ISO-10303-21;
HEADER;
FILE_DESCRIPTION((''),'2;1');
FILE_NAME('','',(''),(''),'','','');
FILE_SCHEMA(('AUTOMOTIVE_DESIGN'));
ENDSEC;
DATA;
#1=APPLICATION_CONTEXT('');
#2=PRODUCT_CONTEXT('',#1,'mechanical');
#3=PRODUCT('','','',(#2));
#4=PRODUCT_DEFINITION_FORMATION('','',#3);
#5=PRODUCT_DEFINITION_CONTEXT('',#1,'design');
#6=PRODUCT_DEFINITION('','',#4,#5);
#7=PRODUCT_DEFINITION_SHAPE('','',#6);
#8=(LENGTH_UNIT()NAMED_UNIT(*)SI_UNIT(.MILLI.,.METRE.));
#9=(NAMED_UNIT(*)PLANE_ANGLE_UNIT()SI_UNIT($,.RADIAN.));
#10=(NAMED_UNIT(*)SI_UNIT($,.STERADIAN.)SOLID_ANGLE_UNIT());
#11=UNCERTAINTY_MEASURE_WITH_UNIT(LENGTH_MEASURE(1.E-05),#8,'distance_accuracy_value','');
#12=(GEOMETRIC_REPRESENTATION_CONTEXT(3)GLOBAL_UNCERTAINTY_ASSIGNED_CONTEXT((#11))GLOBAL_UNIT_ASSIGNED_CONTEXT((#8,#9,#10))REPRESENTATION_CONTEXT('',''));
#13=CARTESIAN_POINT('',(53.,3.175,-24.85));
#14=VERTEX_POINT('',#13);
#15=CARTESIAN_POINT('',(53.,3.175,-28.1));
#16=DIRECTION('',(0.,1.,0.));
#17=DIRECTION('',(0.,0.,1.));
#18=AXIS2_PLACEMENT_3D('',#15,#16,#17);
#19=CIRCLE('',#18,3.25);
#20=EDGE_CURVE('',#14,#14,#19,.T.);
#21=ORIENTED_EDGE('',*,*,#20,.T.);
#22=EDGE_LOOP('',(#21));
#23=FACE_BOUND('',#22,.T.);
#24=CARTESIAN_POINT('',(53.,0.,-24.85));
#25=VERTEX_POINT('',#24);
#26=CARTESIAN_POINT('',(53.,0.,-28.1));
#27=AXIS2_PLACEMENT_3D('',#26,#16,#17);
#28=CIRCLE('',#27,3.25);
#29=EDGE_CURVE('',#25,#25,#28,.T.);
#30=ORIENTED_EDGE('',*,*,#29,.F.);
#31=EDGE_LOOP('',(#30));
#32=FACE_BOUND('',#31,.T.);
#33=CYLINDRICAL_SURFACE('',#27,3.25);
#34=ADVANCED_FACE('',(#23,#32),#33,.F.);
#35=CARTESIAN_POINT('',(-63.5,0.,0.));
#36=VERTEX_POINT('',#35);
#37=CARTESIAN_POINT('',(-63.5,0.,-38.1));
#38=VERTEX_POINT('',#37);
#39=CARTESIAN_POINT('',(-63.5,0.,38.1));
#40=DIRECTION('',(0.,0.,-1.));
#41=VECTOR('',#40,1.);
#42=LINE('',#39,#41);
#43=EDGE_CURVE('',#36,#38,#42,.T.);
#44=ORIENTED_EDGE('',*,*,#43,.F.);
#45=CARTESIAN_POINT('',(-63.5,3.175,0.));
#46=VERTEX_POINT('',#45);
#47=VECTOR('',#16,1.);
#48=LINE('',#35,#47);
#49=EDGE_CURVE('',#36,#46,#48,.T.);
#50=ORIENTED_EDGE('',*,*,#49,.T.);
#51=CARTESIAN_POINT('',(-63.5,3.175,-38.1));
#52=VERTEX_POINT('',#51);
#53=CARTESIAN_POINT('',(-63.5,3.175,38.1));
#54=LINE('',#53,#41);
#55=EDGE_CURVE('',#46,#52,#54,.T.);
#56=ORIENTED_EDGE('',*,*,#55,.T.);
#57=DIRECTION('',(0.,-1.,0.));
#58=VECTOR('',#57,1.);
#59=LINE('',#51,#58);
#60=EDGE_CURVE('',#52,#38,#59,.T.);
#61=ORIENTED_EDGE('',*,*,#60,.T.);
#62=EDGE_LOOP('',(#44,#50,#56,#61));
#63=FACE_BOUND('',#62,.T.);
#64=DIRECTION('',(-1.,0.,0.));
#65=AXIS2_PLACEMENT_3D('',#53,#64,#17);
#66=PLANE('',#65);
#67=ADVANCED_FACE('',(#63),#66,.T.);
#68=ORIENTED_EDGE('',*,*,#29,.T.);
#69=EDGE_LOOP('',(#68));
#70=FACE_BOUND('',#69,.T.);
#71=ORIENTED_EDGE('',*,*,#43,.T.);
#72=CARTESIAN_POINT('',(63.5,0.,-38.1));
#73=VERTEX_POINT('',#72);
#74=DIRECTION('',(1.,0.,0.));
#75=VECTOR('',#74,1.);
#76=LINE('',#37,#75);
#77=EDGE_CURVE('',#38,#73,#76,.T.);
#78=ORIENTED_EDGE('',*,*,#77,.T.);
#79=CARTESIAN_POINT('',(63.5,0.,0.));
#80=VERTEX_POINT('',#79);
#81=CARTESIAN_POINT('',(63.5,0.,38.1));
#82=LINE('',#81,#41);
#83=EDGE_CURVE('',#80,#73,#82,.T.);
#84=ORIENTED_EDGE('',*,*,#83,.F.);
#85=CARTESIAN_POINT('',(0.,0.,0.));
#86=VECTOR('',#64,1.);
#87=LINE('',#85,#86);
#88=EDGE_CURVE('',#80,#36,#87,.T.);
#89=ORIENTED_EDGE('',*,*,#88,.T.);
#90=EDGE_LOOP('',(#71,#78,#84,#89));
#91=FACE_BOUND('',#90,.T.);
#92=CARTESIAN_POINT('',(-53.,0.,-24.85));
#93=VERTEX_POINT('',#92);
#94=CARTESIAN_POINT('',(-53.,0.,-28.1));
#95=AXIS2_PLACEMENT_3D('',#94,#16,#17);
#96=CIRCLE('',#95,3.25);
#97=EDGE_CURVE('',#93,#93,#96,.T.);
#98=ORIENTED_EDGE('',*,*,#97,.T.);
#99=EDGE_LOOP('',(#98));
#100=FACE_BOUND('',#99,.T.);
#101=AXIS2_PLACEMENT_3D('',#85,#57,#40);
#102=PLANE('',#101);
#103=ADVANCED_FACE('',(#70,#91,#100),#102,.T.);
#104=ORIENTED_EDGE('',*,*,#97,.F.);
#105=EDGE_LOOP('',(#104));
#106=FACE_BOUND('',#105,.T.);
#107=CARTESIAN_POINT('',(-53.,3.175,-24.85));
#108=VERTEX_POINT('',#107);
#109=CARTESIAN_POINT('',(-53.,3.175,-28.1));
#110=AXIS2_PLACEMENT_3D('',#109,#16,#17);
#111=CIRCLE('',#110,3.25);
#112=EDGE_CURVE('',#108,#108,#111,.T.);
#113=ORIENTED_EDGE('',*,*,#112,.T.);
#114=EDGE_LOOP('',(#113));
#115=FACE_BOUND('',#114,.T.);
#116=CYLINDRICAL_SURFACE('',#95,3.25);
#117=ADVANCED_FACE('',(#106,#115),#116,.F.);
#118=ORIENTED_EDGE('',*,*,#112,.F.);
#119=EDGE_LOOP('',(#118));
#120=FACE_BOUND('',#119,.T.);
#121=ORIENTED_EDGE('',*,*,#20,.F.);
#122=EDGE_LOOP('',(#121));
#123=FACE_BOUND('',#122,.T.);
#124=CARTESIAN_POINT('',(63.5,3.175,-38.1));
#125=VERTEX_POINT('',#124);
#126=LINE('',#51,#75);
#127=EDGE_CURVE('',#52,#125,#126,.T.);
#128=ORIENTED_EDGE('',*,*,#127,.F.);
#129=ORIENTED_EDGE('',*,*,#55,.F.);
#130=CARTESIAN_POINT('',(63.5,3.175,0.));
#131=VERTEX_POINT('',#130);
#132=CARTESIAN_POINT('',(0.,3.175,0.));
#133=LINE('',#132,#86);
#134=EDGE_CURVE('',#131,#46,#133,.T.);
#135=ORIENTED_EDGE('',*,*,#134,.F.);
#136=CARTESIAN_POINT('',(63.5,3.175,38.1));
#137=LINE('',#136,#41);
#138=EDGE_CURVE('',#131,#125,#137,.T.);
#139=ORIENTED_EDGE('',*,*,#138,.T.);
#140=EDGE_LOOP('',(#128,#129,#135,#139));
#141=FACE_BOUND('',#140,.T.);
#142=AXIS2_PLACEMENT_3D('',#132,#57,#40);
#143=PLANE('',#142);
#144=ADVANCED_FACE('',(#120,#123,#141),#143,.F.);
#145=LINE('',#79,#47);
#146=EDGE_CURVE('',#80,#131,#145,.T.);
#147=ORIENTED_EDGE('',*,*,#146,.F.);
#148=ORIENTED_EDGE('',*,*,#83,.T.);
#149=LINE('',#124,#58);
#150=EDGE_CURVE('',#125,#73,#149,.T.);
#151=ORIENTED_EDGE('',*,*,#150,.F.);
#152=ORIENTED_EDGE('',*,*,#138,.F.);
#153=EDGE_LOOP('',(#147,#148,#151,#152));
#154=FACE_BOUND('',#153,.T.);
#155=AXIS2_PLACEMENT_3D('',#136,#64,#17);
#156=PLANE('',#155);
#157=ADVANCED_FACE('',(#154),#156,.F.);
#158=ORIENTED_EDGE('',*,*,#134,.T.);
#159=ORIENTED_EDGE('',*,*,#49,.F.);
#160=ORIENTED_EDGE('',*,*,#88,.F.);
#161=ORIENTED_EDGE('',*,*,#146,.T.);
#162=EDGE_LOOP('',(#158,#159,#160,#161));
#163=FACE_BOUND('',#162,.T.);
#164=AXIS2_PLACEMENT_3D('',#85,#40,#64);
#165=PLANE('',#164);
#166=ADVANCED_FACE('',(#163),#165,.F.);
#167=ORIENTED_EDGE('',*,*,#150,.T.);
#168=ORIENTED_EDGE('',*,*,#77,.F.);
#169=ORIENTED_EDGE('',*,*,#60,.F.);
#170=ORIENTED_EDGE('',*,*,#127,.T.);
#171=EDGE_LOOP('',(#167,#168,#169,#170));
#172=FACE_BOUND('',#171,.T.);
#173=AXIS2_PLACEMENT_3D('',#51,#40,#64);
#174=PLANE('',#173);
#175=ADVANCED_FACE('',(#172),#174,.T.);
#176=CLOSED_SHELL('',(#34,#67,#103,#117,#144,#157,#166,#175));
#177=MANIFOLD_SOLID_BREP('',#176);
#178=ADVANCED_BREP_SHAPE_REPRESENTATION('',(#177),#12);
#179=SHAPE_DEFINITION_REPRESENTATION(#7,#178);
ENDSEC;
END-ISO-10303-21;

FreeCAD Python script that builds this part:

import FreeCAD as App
import Part
import Sketcher

V = App.Vector
Q = App.Units.Quantity

doc = App.newDocument("Part")
body = doc.addObject("PartDesign::Body", "Body")

# Sketch on XZ plane
sketch1 = doc.addObject("Sketcher::SketchObject", "Sketch")
body.addObject(sketch1)
sketch1.AttachmentSupport = (doc.XZ_Plane, [""])
sketch1.MapMode = "FlatFace"
sketch1.addGeometry([
    Part.LineSegment(V(-64, -38, 0), V(-64, 38, 0)),
    Part.LineSegment(V(-64, 38, 0), V(64, 38, 0)),
    Part.LineSegment(V(64, 38, 0), V(64, -38, 0)),
    Part.LineSegment(V(64, -38, 0), V(-64, -38, 0)),
], False)
sketch1.addConstraint([
    Sketcher.Constraint("Coincident", 0, 2, 1, 1),
    Sketcher.Constraint("Coincident", 1, 2, 2, 1),
    Sketcher.Constraint("Coincident", 2, 2, 3, 1),
    Sketcher.Constraint("Coincident", 3, 2, 0, 1),
    Sketcher.Constraint("Vertical", 0),
    Sketcher.Constraint("Horizontal", 1),
    Sketcher.Constraint("Vertical", 2),
    Sketcher.Constraint("Horizontal", 3),
    Sketcher.Constraint("Symmetric", 0, 2, 2, 2, -1, 1),
    Sketcher.Constraint("DistanceX", 1, 1, 1, 2, Q("5 in")),
    Sketcher.Constraint("DistanceY", 0, 1, 0, 2, Q("3 in")),
])
pad1 = doc.addObject("PartDesign::Pad", "Pad")
body.addObject(pad1)
pad1.Profile = sketch1
pad1.Length = Q("0.125 in")
pad1.Reversed = True

# Sketch on XZ plane
sketch2 = doc.addObject("Sketcher::SketchObject", "Sketch001")
body.addObject(sketch2)
sketch2.AttachmentSupport = (doc.XZ_Plane, [""])
sketch2.MapMode = "FlatFace"
sketch2.AttachmentOffset = App.Placement(V(0, 0, -0.125 * 25.4), App.Rotation())
sketch2.addGeometry([
    Part.LineSegment(V(-63.5, 0, 0), V(-63.5, 38.1, 0)),  # 0
    Part.LineSegment(V(-63.5, 38.1, 0), V(63.5, 38.1, 0)),  # 1
    Part.LineSegment(V(63.5, 38.1, 0), V(63.5, 0, 0)),  # 2
    Part.LineSegment(V(63.5, 0, 0), V(-63.5, 0, 0)),  # 3
    Part.Circle(V(-53, -28.1, 0), V(0, 0, 1), 3.2),  # 4
    Part.Circle(V(53, -28.1, 0), V(0, 0, 1), 3.2),  # 5
], False)
sketch2.addConstraint([
    Sketcher.Constraint("Coincident", 0, 2, 1, 1),
    Sketcher.Constraint("Coincident", 1, 2, 2, 1),
    Sketcher.Constraint("Coincident", 2, 2, 3, 1),
    Sketcher.Constraint("Coincident", 3, 2, 0, 1),
    Sketcher.Constraint("Vertical", 0),
    Sketcher.Constraint("Horizontal", 1),
    Sketcher.Constraint("Vertical", 2),
    Sketcher.Constraint("Horizontal", 3),
    Sketcher.Constraint("Equal", 4, 5),
    Sketcher.Constraint("Symmetric", 2, 2, 3, 2, -1, 1),
    Sketcher.Constraint("Symmetric", 4, 3, 5, 3, -2),
    Sketcher.Constraint("DistanceX", 1, 1, 1, 2, Q("5 in")),
    Sketcher.Constraint("DistanceY", 0, 1, 0, 2, Q("1.5 in")),
    Sketcher.Constraint("Diameter", 4, Q("6.5 mm")),
    Sketcher.Constraint("DistanceX", 4, 3, -1, 1, Q("53 mm")),
    Sketcher.Constraint("DistanceY", 4, 3, -1, 1, Q("28.1 mm")),
])
pocket1 = doc.addObject("PartDesign::Pocket", "Pocket")
body.addObject(pocket1)
pocket1.Profile = sketch2
pocket1.Type = "ThroughAll"
pocket1.Reversed = True

doc.recompute()
